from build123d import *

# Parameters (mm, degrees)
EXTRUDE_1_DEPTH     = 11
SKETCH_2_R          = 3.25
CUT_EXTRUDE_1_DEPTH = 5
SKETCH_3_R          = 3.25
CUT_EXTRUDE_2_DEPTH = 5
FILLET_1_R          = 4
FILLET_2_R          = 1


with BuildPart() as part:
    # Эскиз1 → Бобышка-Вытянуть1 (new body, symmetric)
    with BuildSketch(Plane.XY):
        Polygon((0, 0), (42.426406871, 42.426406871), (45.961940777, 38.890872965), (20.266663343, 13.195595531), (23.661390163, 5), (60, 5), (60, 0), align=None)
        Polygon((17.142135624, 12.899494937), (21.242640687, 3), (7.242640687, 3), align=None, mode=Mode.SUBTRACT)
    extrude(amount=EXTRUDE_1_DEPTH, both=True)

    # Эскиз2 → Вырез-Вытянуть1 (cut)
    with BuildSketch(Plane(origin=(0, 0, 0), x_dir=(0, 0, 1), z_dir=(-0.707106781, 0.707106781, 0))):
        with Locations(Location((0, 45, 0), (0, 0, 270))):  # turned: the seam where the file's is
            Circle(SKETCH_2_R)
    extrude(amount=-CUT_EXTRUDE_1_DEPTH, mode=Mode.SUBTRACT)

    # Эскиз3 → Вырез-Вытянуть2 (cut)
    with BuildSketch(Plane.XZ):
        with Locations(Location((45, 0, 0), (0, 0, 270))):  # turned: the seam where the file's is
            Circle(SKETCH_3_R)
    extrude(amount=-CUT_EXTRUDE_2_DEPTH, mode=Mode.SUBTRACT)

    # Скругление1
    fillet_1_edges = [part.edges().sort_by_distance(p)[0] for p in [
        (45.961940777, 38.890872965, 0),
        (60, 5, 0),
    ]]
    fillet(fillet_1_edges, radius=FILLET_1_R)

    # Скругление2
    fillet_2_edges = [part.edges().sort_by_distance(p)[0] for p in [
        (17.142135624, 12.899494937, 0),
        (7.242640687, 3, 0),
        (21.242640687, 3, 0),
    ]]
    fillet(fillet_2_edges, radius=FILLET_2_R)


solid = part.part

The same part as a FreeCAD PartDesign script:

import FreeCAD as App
import Part
import Sketcher

V = App.Vector
Q = App.Units.Quantity


def edges_at(feature, points):
    """Names of the edges that pass closest to the given points."""
    edges = feature.Shape.Edges
    near = lambda p: min(range(len(edges)), key=lambda i: edges[i].distToShape(Part.Vertex(*p))[0])
    return sorted({f"Edge{near(p) + 1}" for p in points})

doc = App.newDocument("Part")
params = doc.addObject("Spreadsheet::Sheet", "Params")
for row, (alias, value) in enumerate([
    ("sketch1_width", "60 mm"),
    ("sketch1_width2", "14 mm"),
    ("sketch1_height", "5 mm"),
    ("sketch1_length", "60 mm"),
    ("sketch1_length2", "5 mm"),
    ("pad1_length", "22 mm"),
    ("sketch2_diameter", "6.5 mm"),
    ("pocket1_length", "5 mm"),
    ("sketch3_diameter", "6.5 mm"),
    ("pocket2_length", "5 mm"),
    ("fillet_radius", "4 mm"),
    ("fillet2_radius", "1 mm"),
], start=1):
    params.set(f"A{row}", alias)
    params.set(f"B{row}", "=" + value)
    params.setAlias(f"B{row}", alias)

body = doc.addObject("PartDesign::Body", "Body")

# Sketch on XY plane
sketch1 = body.newObject("Sketcher::SketchObject", "Sketch")
sketch1.AttachmentSupport = (doc.getObject("XY_Plane"), [""])
sketch1.MapMode = "FlatFace"
sketch1.addGeometry(Part.LineSegment(V(42, 42, 0), V(0, 0, 0)), False)
sketch1.addGeometry(Part.LineSegment(V(0, 0, 0), V(60, 0, 0)), False)
sketch1.addGeometry(Part.LineSegment(V(60, 0, 0), V(60, 5, 0)), False)
sketch1.addGeometry(Part.LineSegment(V(60, 5, 0), V(24, 5, 0)), False)
sketch1.addGeometry(Part.LineSegment(V(24, 5, 0), V(20, 13, 0)), False)
sketch1.addGeometry(Part.LineSegment(V(20, 13, 0), V(46, 39, 0)), False)
sketch1.addGeometry(Part.LineSegment(V(46, 39, 0), V(42, 42, 0)), False)
sketch1.addGeometry(Part.LineSegment(V(17, 13, 0), V(21, 3, 0)), False)
sketch1.addGeometry(Part.LineSegment(V(21, 3, 0), V(7, 3, 0)), False)
sketch1.addGeometry(Part.LineSegment(V(7, 3, 0), V(17, 13, 0)), False)
sketch1.addConstraint(Sketcher.Constraint("Coincident", 0, 2, 1, 1))
sketch1.addConstraint(Sketcher.Constraint("Coincident", 1, 2, 2, 1))
sketch1.addConstraint(Sketcher.Constraint("Coincident", 2, 2, 3, 1))
sketch1.addConstraint(Sketcher.Constraint("Coincident", 3, 2, 4, 1))
sketch1.addConstraint(Sketcher.Constraint("Coincident", 4, 2, 5, 1))
sketch1.addConstraint(Sketcher.Constraint("Coincident", 5, 2, 6, 1))
sketch1.addConstraint(Sketcher.Constraint("Coincident", 6, 2, 0, 1))
sketch1.addConstraint(Sketcher.Constraint("Coincident", 7, 2, 8, 1))
sketch1.addConstraint(Sketcher.Constraint("Coincident", 8, 2, 9, 1))
sketch1.addConstraint(Sketcher.Constraint("Coincident", 9, 2, 7, 1))
sketch1.addConstraint(Sketcher.Constraint("Horizontal", 1))
sketch1.addConstraint(Sketcher.Constraint("Vertical", 2))
sketch1.addConstraint(Sketcher.Constraint("Horizontal", 3))
sketch1.addConstraint(Sketcher.Constraint("Horizontal", 8))
sketch1.addConstraint(Sketcher.Constraint("Coincident", 0, 2, -1, 1))
sketch1.addConstraint(Sketcher.Constraint("Parallel", 0, 5))
sketch1.addConstraint(Sketcher.Constraint("Perpendicular", 5, 6))
sketch1.addConstraint(Sketcher.Constraint("Parallel", 4, 7))
sketch1.addConstraint(Sketcher.Constraint("Perpendicular", 6, 9))
sketch1.addConstraint(Sketcher.Constraint("DistanceX", 1, 1, 1, 2, 60.0))
sketch1.addConstraint(Sketcher.Constraint("DistanceX", 8, 2, 8, 1, 14.0))
sketch1.addConstraint(Sketcher.Constraint("DistanceY", 2, 1, 2, 2, 5.0))
sketch1.addConstraint(Sketcher.Constraint("Angle", 0, Q("-135 deg")))
sketch1.addConstraint(Sketcher.Constraint("Distance", 0, 60.0))
sketch1.addConstraint(Sketcher.Constraint("Distance", 6, 5.0))
sketch1.addConstraint(Sketcher.Constraint("Distance", 9, 14.0))
sketch1.addConstraint(Sketcher.Constraint("DistanceY", -1, 1, 7, 2, 3.0))
sketch1.addConstraint(Sketcher.Constraint("DistanceX", 3, 2, 3, 1, 36.33861))
sketch1.addConstraint(Sketcher.Constraint("DistanceX", 8, 2, 5, 2, 38.7193))
sketch1.setExpression("Constraints[19]", "Params.sketch1_width")
sketch1.setExpression("Constraints[20]", "Params.sketch1_width2")
sketch1.setExpression("Constraints[21]", "Params.sketch1_height")
sketch1.setExpression("Constraints[23]", "Params.sketch1_length")
sketch1.setExpression("Constraints[24]", "Params.sketch1_length2")
pad1 = body.newObject("PartDesign::Pad", "Pad")
pad1.Profile = sketch1
pad1.setExpression("Length", "Params.pad1_length")
pad1.Midplane = True

# Sketch on an angled plane
sketch2 = body.newObject("Sketcher::SketchObject", "Sketch001")
sketch2.Placement = App.Placement(V(0, 0, 0), App.Rotation(V(0, 0, 1), V(0.707106781, 0.707106781, 0), V(-0.707106781, 0.707106781, 0), "ZXY"))
sketch2.addGeometry(Part.Circle(V(0, 45, 0), V(0, 0, 1), 3.2), False)
sketch2.addConstraint(Sketcher.Constraint("PointOnObject", 0, 3, -2))
sketch2.addConstraint(Sketcher.Constraint("Diameter", 0, 6.5))
sketch2.addConstraint(Sketcher.Constraint("DistanceY", -1, 1, 0, 3, 45.0))
sketch2.setExpression("Constraints[1]", "Params.sketch2_diameter")
pocket1 = body.newObject("PartDesign::Pocket", "Pocket")
pocket1.Profile = sketch2
pocket1.setExpression("Length", "Params.pocket1_length")

# Sketch on XZ plane
sketch3 = body.newObject("Sketcher::SketchObject", "Sketch002")
sketch3.AttachmentSupport = (doc.getObject("XZ_Plane"), [""])
sketch3.MapMode = "FlatFace"
sketch3.addGeometry(Part.Circle(V(45, 0, 0), V(0, 0, 1), 3.2), False)
sketch3.addConstraint(Sketcher.Constraint("PointOnObject", 0, 3, -1))
sketch3.addConstraint(Sketcher.Constraint("Diameter", 0, 6.5))
sketch3.addConstraint(Sketcher.Constraint("DistanceX", -1, 1, 0, 3, 45.0))
sketch3.setExpression("Constraints[1]", "Params.sketch3_diameter")
pocket2 = body.newObject("PartDesign::Pocket", "Pocket001")
pocket2.Profile = sketch3
pocket2.setExpression("Length", "Params.pocket2_length")
doc.recompute()

fillet = body.newObject("PartDesign::Fillet", "Fillet")
fillet.Base = (pocket2, edges_at(pocket2, [(45.962, 38.891, 0), (60, 5, 0)]))
fillet.setExpression("Radius", "Params.fillet_radius")
doc.recompute()

fillet2 = body.newObject("PartDesign::Fillet", "Fillet001")
fillet2.Base = (fillet, edges_at(fillet, [(17.142, 12.899, 0), (7.243, 3, 0), (21.243, 3, 0)]))
fillet2.setExpression("Radius", "Params.fillet2_radius")

doc.recompute()
